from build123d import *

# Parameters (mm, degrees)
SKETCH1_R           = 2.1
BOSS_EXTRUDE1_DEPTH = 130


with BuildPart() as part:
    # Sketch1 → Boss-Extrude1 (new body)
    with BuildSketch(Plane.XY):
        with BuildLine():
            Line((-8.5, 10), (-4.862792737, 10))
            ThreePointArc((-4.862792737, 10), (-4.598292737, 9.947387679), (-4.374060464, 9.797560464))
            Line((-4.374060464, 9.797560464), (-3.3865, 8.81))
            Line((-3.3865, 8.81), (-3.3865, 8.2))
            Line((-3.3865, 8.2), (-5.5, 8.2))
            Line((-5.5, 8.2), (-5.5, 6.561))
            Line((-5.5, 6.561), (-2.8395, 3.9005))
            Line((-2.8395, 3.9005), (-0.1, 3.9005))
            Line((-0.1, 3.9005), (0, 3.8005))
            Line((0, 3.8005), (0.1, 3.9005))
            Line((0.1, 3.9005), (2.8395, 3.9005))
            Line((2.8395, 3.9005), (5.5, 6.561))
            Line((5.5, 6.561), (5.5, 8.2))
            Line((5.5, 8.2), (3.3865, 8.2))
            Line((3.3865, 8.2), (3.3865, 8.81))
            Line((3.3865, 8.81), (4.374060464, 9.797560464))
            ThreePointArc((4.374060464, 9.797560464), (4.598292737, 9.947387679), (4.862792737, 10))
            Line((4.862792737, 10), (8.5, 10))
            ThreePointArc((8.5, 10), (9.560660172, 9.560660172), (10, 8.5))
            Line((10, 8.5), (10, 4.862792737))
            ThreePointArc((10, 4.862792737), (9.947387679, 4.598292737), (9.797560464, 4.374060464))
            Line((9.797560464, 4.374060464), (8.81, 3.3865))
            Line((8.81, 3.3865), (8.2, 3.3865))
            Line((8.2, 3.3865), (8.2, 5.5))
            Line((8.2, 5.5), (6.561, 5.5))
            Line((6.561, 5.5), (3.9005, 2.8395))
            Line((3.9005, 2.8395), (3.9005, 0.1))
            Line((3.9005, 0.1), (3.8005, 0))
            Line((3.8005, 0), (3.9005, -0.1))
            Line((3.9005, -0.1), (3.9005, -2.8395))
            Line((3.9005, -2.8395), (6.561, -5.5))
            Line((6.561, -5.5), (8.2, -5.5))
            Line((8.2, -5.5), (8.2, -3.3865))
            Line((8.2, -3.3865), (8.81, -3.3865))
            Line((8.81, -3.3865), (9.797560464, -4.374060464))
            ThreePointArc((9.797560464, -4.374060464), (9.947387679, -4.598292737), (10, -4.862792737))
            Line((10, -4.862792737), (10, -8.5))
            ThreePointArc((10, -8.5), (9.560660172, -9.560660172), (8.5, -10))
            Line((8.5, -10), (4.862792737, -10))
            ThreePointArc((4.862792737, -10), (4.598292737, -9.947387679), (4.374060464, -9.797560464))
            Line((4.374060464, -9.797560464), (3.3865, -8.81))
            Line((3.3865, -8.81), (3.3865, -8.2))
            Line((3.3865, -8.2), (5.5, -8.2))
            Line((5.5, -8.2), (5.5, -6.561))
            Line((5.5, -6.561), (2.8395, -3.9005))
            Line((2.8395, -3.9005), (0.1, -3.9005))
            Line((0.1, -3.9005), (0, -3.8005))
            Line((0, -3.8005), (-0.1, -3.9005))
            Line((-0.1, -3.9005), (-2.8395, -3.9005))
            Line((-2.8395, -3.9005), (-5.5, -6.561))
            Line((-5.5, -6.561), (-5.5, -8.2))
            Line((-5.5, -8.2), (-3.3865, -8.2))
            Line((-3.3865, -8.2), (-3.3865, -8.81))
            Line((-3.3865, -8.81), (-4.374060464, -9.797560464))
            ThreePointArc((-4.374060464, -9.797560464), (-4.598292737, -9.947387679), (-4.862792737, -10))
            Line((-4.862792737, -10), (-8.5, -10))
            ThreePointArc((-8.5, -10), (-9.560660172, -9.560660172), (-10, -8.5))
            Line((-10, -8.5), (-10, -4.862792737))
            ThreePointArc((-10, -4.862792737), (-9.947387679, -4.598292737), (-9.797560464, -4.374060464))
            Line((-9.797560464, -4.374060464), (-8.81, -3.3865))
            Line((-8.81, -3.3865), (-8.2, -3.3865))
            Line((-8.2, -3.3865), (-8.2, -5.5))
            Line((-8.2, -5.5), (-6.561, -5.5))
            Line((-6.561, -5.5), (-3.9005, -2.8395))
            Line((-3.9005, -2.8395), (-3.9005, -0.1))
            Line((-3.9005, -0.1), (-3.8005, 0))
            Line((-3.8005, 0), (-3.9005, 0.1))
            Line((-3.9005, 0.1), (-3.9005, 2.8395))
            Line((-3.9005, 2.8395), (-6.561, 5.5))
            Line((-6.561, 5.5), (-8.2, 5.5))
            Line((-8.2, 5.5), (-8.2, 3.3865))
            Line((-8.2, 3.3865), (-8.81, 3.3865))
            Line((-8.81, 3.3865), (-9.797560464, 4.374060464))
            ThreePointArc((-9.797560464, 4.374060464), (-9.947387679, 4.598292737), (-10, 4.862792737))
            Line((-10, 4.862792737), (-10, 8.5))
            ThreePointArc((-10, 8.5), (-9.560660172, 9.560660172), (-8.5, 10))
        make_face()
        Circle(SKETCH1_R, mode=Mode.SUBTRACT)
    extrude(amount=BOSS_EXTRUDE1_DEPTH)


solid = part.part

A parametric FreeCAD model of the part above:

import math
import FreeCAD as App
import Part
import Sketcher
from FreeCAD import Vector
Q = App.Units.Quantity

doc = App.newDocument("Part")
body = doc.addObject("PartDesign::Body", "Body")

sketch1 = body.newObject("Sketcher::SketchObject", "Sketch")
sketch1.AttachmentSupport = (doc.getObject("XY_Plane"), [""])
sketch1.MapMode = "FlatFace"
sketch1.addGeometry([
    Part.LineSegment(Vector(-4.86, 10, 0), Vector(-8.5, 10, 0)),
    Part.ArcOfCircle(Part.Circle(Vector(-8.5, 8.5, 0), Vector(0, 0, 1), 1.5), math.radians(90), math.radians(180)),
    Part.LineSegment(Vector(-10, 8.5, 0), Vector(-10, 4.86, 0)),
    Part.ArcOfCircle(Part.Circle(Vector(-9.31, 4.86, 0), Vector(0, 0, 1), 0.69), math.radians(180), math.radians(225)),
    Part.LineSegment(Vector(-9.8, 4.37, 0), Vector(-8.81, 3.39, 0)),
    Part.LineSegment(Vector(-8.81, 3.39, 0), Vector(-8.2, 3.39, 0)),
    Part.LineSegment(Vector(-8.2, 3.39, 0), Vector(-8.2, 5.5, 0)),
    Part.LineSegment(Vector(-8.2, 5.5, 0), Vector(-6.56, 5.5, 0)),
    Part.LineSegment(Vector(-6.56, 5.5, 0), Vector(-3.9, 2.84, 0)),
    Part.LineSegment(Vector(-3.9, 2.84, 0), Vector(-3.9, 0.1, 0)),
    Part.LineSegment(Vector(-3.9, 0.1, 0), Vector(-3.8, 0, 0)),
    Part.LineSegment(Vector(-3.8, 0, 0), Vector(-3.9, -0.1, 0)),
    Part.LineSegment(Vector(-3.9, -0.1, 0), Vector(-3.9, -2.84, 0)),
    Part.LineSegment(Vector(-3.9, -2.84, 0), Vector(-6.56, -5.5, 0)),
    Part.LineSegment(Vector(-6.56, -5.5, 0), Vector(-8.2, -5.5, 0)),
    Part.LineSegment(Vector(-8.2, -5.5, 0), Vector(-8.2, -3.39, 0)),
    Part.LineSegment(Vector(-8.2, -3.39, 0), Vector(-8.81, -3.39, 0)),
    Part.LineSegment(Vector(-8.81, -3.39, 0), Vector(-9.8, -4.37, 0)),
    Part.ArcOfCircle(Part.Circle(Vector(-9.31, -4.86, 0), Vector(0, 0, 1), 0.69), math.radians(135), math.radians(180)),
    Part.LineSegment(Vector(-10, -4.86, 0), Vector(-10, -8.5, 0)),
    Part.ArcOfCircle(Part.Circle(Vector(-8.5, -8.5, 0), Vector(0, 0, 1), 1.5), math.radians(180), math.radians(270)),
    Part.LineSegment(Vector(-8.5, -10, 0), Vector(-4.86, -10, 0)),
    Part.ArcOfCircle(Part.Circle(Vector(-4.86, -9.31, 0), Vector(0, 0, 1), 0.69), math.radians(-90), math.radians(-45)),
    Part.LineSegment(Vector(-4.37, -9.8, 0), Vector(-3.39, -8.81, 0)),
    Part.LineSegment(Vector(-3.39, -8.81, 0), Vector(-3.39, -8.2, 0)),
    Part.LineSegment(Vector(-3.39, -8.2, 0), Vector(-5.5, -8.2, 0)),
    Part.LineSegment(Vector(-5.5, -8.2, 0), Vector(-5.5, -6.56, 0)),
    Part.LineSegment(Vector(-5.5, -6.56, 0), Vector(-2.84, -3.9, 0)),
    Part.LineSegment(Vector(-2.84, -3.9, 0), Vector(-0.1, -3.9, 0)),
    Part.LineSegment(Vector(-0.1, -3.9, 0), Vector(0, -3.8, 0)),
    Part.LineSegment(Vector(0, -3.8, 0), Vector(0.1, -3.9, 0)),
    Part.LineSegment(Vector(0.1, -3.9, 0), Vector(2.84, -3.9, 0)),
    Part.LineSegment(Vector(2.84, -3.9, 0), Vector(5.5, -6.56, 0)),
    Part.LineSegment(Vector(5.5, -6.56, 0), Vector(5.5, -8.2, 0)),
    Part.LineSegment(Vector(5.5, -8.2, 0), Vector(3.39, -8.2, 0)),
    Part.LineSegment(Vector(3.39, -8.2, 0), Vector(3.39, -8.81, 0)),
    Part.LineSegment(Vector(3.39, -8.81, 0), Vector(4.37, -9.8, 0)),
    Part.ArcOfCircle(Part.Circle(Vector(4.86, -9.31, 0), Vector(0, 0, 1), 0.69), math.radians(-135), math.radians(-90)),
    Part.LineSegment(Vector(4.86, -10, 0), Vector(8.5, -10, 0)),
    Part.ArcOfCircle(Part.Circle(Vector(8.5, -8.5, 0), Vector(0, 0, 1), 1.5), math.radians(-90), math.radians(0)),
    Part.LineSegment(Vector(10, -8.5, 0), Vector(10, -4.86, 0)),
    Part.ArcOfCircle(Part.Circle(Vector(9.31, -4.86, 0), Vector(0, 0, 1), 0.69), math.radians(0), math.radians(45)),
    Part.LineSegment(Vector(9.8, -4.37, 0), Vector(8.81, -3.39, 0)),
    Part.LineSegment(Vector(8.81, -3.39, 0), Vector(8.2, -3.39, 0)),
    Part.LineSegment(Vector(8.2, -3.39, 0), Vector(8.2, -5.5, 0)),
    Part.LineSegment(Vector(8.2, -5.5, 0), Vector(6.56, -5.5, 0)),
    Part.LineSegment(Vector(6.56, -5.5, 0), Vector(3.9, -2.84, 0)),
    Part.LineSegment(Vector(3.9, -2.84, 0), Vector(3.9, -0.1, 0)),
    Part.LineSegment(Vector(3.9, -0.1, 0), Vector(3.8, 0, 0)),
    Part.LineSegment(Vector(3.8, 0, 0), Vector(3.9, 0.1, 0)),
    Part.LineSegment(Vector(3.9, 0.1, 0), Vector(3.9, 2.84, 0)),
    Part.LineSegment(Vector(3.9, 2.84, 0), Vector(6.56, 5.5, 0)),
    Part.LineSegment(Vector(6.56, 5.5, 0), Vector(8.2, 5.5, 0)),
    Part.LineSegment(Vector(8.2, 5.5, 0), Vector(8.2, 3.39, 0)),
    Part.LineSegment(Vector(8.2, 3.39, 0), Vector(8.81, 3.39, 0)),
    Part.LineSegment(Vector(8.81, 3.39, 0), Vector(9.8, 4.37, 0)),
    Part.ArcOfCircle(Part.Circle(Vector(9.31, 4.86, 0), Vector(0, 0, 1), 0.69), math.radians(-45), math.radians(0)),
    Part.LineSegment(Vector(10, 4.86, 0), Vector(10, 8.5, 0)),
    Part.ArcOfCircle(Part.Circle(Vector(8.5, 8.5, 0), Vector(0, 0, 1), 1.5), math.radians(0), math.radians(90)),
    Part.LineSegment(Vector(8.5, 10, 0), Vector(4.86, 10, 0)),
    Part.ArcOfCircle(Part.Circle(Vector(4.86, 9.31, 0), Vector(0, 0, 1), 0.69), math.radians(90), math.radians(135)),
    Part.LineSegment(Vector(4.37, 9.8, 0), Vector(3.39, 8.81, 0)),
    Part.LineSegment(Vector(3.39, 8.81, 0), Vector(3.39, 8.2, 0)),
    Part.LineSegment(Vector(3.39, 8.2, 0), Vector(5.5, 8.2, 0)),
    Part.LineSegment(Vector(5.5, 8.2, 0), Vector(5.5, 6.56, 0)),
    Part.LineSegment(Vector(5.5, 6.56, 0), Vector(2.84, 3.9, 0)),
    Part.LineSegment(Vector(2.84, 3.9, 0), Vector(0.1, 3.9, 0)),
    Part.LineSegment(Vector(0.1, 3.9, 0), Vector(0, 3.8, 0)),
    Part.LineSegment(Vector(0, 3.8, 0), Vector(-0.1, 3.9, 0)),
    Part.LineSegment(Vector(-0.1, 3.9, 0), Vector(-2.84, 3.9, 0)),
    Part.LineSegment(Vector(-2.84, 3.9, 0), Vector(-5.5, 6.56, 0)),
    Part.LineSegment(Vector(-5.5, 6.56, 0), Vector(-5.5, 8.2, 0)),
    Part.LineSegment(Vector(-5.5, 8.2, 0), Vector(-3.39, 8.2, 0)),
    Part.LineSegment(Vector(-3.39, 8.2, 0), Vector(-3.39, 8.81, 0)),
    Part.LineSegment(Vector(-3.39, 8.81, 0), Vector(-4.37, 9.8, 0)),
    Part.ArcOfCircle(Part.Circle(Vector(-4.86, 9.31, 0), Vector(0, 0, 1), 0.69), math.radians(45), math.radians(90)),
    Part.Circle(Vector(0, 0, 0), Vector(0, 0, 1), 2.1),
], False)
sketch1.addConstraint([
    Sketcher.Constraint("Tangent", 0, 2, 1, 1),
    Sketcher.Constraint("Tangent", 1, 2, 2, 1),
    Sketcher.Constraint("Tangent", 2, 2, 3, 1),
    Sketcher.Constraint("Tangent", 3, 2, 4, 1),
    Sketcher.Constraint("Coincident", 4, 2, 5, 1),
    Sketcher.Constraint("Coincident", 5, 2, 6, 1),
    Sketcher.Constraint("Coincident", 6, 2, 7, 1),
    Sketcher.Constraint("Coincident", 7, 2, 8, 1),
    Sketcher.Constraint("Coincident", 8, 2, 9, 1),
    Sketcher.Constraint("Coincident", 9, 2, 10, 1),
    Sketcher.Constraint("Coincident", 10, 2, 11, 1),
    Sketcher.Constraint("Coincident", 11, 2, 12, 1),
    Sketcher.Constraint("Coincident", 12, 2, 13, 1),
    Sketcher.Constraint("Coincident", 13, 2, 14, 1),
    Sketcher.Constraint("Coincident", 14, 2, 15, 1),
    Sketcher.Constraint("Coincident", 15, 2, 16, 1),
    Sketcher.Constraint("Coincident", 16, 2, 17, 1),
    Sketcher.Constraint("Tangent", 17, 2, 18, 1),
    Sketcher.Constraint("Tangent", 18, 2, 19, 1),
    Sketcher.Constraint("Tangent", 19, 2, 20, 1),
    Sketcher.Constraint("Tangent", 20, 2, 21, 1),
    Sketcher.Constraint("Tangent", 21, 2, 22, 1),
    Sketcher.Constraint("Tangent", 22, 2, 23, 1),
    Sketcher.Constraint("Coincident", 23, 2, 24, 1),
    Sketcher.Constraint("Coincident", 24, 2, 25, 1),
    Sketcher.Constraint("Coincident", 25, 2, 26, 1),
    Sketcher.Constraint("Coincident", 26, 2, 27, 1),
    Sketcher.Constraint("Coincident", 27, 2, 28, 1),
    Sketcher.Constraint("Coincident", 28, 2, 29, 1),
    Sketcher.Constraint("Coincident", 29, 2, 30, 1),
    Sketcher.Constraint("Coincident", 30, 2, 31, 1),
    Sketcher.Constraint("Coincident", 31, 2, 32, 1),
    Sketcher.Constraint("Coincident", 32, 2, 33, 1),
    Sketcher.Constraint("Coincident", 33, 2, 34, 1),
    Sketcher.Constraint("Coincident", 34, 2, 35, 1),
    Sketcher.Constraint("Coincident", 35, 2, 36, 1),
    Sketcher.Constraint("Tangent", 36, 2, 37, 1),
    Sketcher.Constraint("Tangent", 37, 2, 38, 1),
    Sketcher.Constraint("Tangent", 38, 2, 39, 1),
    Sketcher.Constraint("Tangent", 39, 2, 40, 1),
    Sketcher.Constraint("Tangent", 40, 2, 41, 1),
    Sketcher.Constraint("Tangent", 41, 2, 42, 1),
    Sketcher.Constraint("Coincident", 42, 2, 43, 1),
    Sketcher.Constraint("Coincident", 43, 2, 44, 1),
    Sketcher.Constraint("Coincident", 44, 2, 45, 1),
    Sketcher.Constraint("Coincident", 45, 2, 46, 1),
    Sketcher.Constraint("Coincident", 46, 2, 47, 1),
    Sketcher.Constraint("Coincident", 47, 2, 48, 1),
    Sketcher.Constraint("Coincident", 48, 2, 49, 1),
    Sketcher.Constraint("Coincident", 49, 2, 50, 1),
    Sketcher.Constraint("Coincident", 50, 2, 51, 1),
    Sketcher.Constraint("Coincident", 51, 2, 52, 1),
    Sketcher.Constraint("Coincident", 52, 2, 53, 1),
    Sketcher.Constraint("Coincident", 53, 2, 54, 1),
    Sketcher.Constraint("Coincident", 54, 2, 55, 1),
    Sketcher.Constraint("Tangent", 55, 2, 56, 1),
    Sketcher.Constraint("Tangent", 56, 2, 57, 1),
    Sketcher.Constraint("Tangent", 57, 2, 58, 1),
    Sketcher.Constraint("Tangent", 58, 2, 59, 1),
    Sketcher.Constraint("Tangent", 59, 2, 60, 1),
    Sketcher.Constraint("Tangent", 60, 2, 61, 1),
    Sketcher.Constraint("Coincident", 61, 2, 62, 1),
    Sketcher.Constraint("Coincident", 62, 2, 63, 1),
    Sketcher.Constraint("Coincident", 63, 2, 64, 1),
    Sketcher.Constraint("Coincident", 64, 2, 65, 1),
    Sketcher.Constraint("Coincident", 65, 2, 66, 1),
    Sketcher.Constraint("Coincident", 66, 2, 67, 1),
    Sketcher.Constraint("Coincident", 67, 2, 68, 1),
    Sketcher.Constraint("Coincident", 68, 2, 69, 1),
    Sketcher.Constraint("Coincident", 69, 2, 70, 1),
    Sketcher.Constraint("Coincident", 70, 2, 71, 1),
    Sketcher.Constraint("Coincident", 71, 2, 72, 1),
    Sketcher.Constraint("Coincident", 72, 2, 73, 1),
    Sketcher.Constraint("Coincident", 73, 2, 74, 1),
    Sketcher.Constraint("Tangent", 74, 2, 75, 1),
    Sketcher.Constraint("Tangent", 75, 2, 0, 1),
    Sketcher.Constraint("Horizontal", 0),
    Sketcher.Constraint("Vertical", 2),
    Sketcher.Constraint("Horizontal", 5),
    Sketcher.Constraint("Vertical", 6),
    Sketcher.Constraint("Horizontal", 7),
    Sketcher.Constraint("Vertical", 9),
    Sketcher.Constraint("Vertical", 12),
    Sketcher.Constraint("Horizontal", 14),
    Sketcher.Constraint("Vertical", 15),
    Sketcher.Constraint("Horizontal", 16),
    Sketcher.Constraint("Vertical", 19),
    Sketcher.Constraint("Horizontal", 21),
    Sketcher.Constraint("Vertical", 24),
    Sketcher.Constraint("Horizontal", 25),
    Sketcher.Constraint("Vertical", 26),
    Sketcher.Constraint("Horizontal", 28),
    Sketcher.Constraint("Horizontal", 31),
    Sketcher.Constraint("Vertical", 33),
    Sketcher.Constraint("Horizontal", 34),
    Sketcher.Constraint("Vertical", 35),
    Sketcher.Constraint("Horizontal", 38),
    Sketcher.Constraint("Vertical", 40),
    Sketcher.Constraint("Horizontal", 43),
    Sketcher.Constraint("Vertical", 44),
    Sketcher.Constraint("Horizontal", 45),
    Sketcher.Constraint("Vertical", 47),
    Sketcher.Constraint("Vertical", 50),
    Sketcher.Constraint("Horizontal", 52),
    Sketcher.Constraint("Vertical", 53),
    Sketcher.Constraint("Horizontal", 54),
    Sketcher.Constraint("Vertical", 57),
    Sketcher.Constraint("Horizontal", 59),
    Sketcher.Constraint("Vertical", 62),
    Sketcher.Constraint("Horizontal", 63),
    Sketcher.Constraint("Vertical", 64),
    Sketcher.Constraint("Horizontal", 66),
    Sketcher.Constraint("Horizontal", 69),
    Sketcher.Constraint("Vertical", 71),
    Sketcher.Constraint("Horizontal", 72),
    Sketcher.Constraint("Vertical", 73),
    Sketcher.Constraint("Coincident", 76, 3, -1, 1),
    Sketcher.Constraint("Equal", 3, 18),
    Sketcher.Constraint("Equal", 1, 20),
    Sketcher.Constraint("Equal", 18, 22),
    Sketcher.Constraint("Equal", 22, 37),
    Sketcher.Constraint("Equal", 20, 39),
    Sketcher.Constraint("Equal", 37, 41),
    Sketcher.Constraint("Equal", 41, 56),
    Sketcher.Constraint("Equal", 39, 58),
    Sketcher.Constraint("Equal", 56, 60),
    Sketcher.Constraint("Equal", 60, 75),
    Sketcher.Constraint("Symmetric", 1, 3, 39, 3, -1, 1),
    Sketcher.Constraint("Symmetric", 18, 3, 56, 3, -1, 1),
    Sketcher.Constraint("Symmetric", 22, 3, 60, 3, -1, 1),
    Sketcher.Constraint("Symmetric", 3, 2, 41, 2, -1, 1),
    Sketcher.Constraint("Symmetric", 5, 2, 43, 2, -1, 1),
    Sketcher.Constraint("Symmetric", 7, 2, 45, 2, -1, 1),
    Sketcher.Constraint("Symmetric", 8, 2, 46, 2, -1, 1),
    Sketcher.Constraint("Symmetric", 10, 2, 48, 2, -1, 1),
    Sketcher.Constraint("Symmetric", 11, 2, 49, 2, -1, 1),
    Sketcher.Constraint("Symmetric", 13, 2, 51, 2, -1, 1),
    Sketcher.Constraint("Symmetric", 15, 2, 53, 2, -1, 1),
    Sketcher.Constraint("Symmetric", 23, 2, 61, 2, -1, 1),
    Sketcher.Constraint("Symmetric", 25, 2, 63, 2, -1, 1),
    Sketcher.Constraint("Symmetric", 27, 2, 65, 2, -1, 1),
    Sketcher.Constraint("Symmetric", 29, 2, 67, 2, -1, 1),
    Sketcher.Constraint("Symmetric", 30, 2, 68, 2, -1, 1),
    Sketcher.Constraint("Symmetric", 32, 2, 70, 2, -1, 1),
    Sketcher.Constraint("Symmetric", 34, 2, 72, 2, -1, 1),
    Sketcher.Constraint("Symmetric", 36, 2, 74, 2, -1, 1),
    Sketcher.Constraint("Symmetric", 22, 3, 37, 3, -2),
    Sketcher.Constraint("Symmetric", 18, 3, 41, 3, -2),
    Sketcher.Constraint("Symmetric", 28, 2, 30, 2, -2),
    Sketcher.Constraint("Symmetric", 26, 2, 32, 2, -2),
    Sketcher.Constraint("Symmetric", 24, 2, 34, 2, -2),
    Sketcher.Constraint("Symmetric", 16, 2, 42, 2, -2),
    Sketcher.Constraint("Symmetric", 14, 2, 44, 2, -2),
    Sketcher.Constraint("Symmetric", 12, 2, 46, 2, -2),
    Sketcher.Constraint("PointOnObject", 10, 2, -1),
    Sketcher.Constraint("PointOnObject", 29, 2, -2),
    Sketcher.Constraint("Parallel", 4, 8),
    Sketcher.Constraint("Parallel", 8, 10),
    Sketcher.Constraint("Perpendicular", 10, 11),
    Sketcher.Constraint("Parallel", 11, 13),
    Sketcher.Constraint("Parallel", 13, 17),
    Sketcher.Constraint("Parallel", 17, 23),
    Sketcher.Constraint("Parallel", 23, 27),
    Sketcher.Constraint("Parallel", 27, 29),
    Sketcher.Constraint("Parallel", 30, 32),
    Sketcher.Constraint("Parallel", 32, 36),
    Sketcher.Constraint("Parallel", 46, 48),
    Sketcher.Constraint("Parallel", 49, 51),
    Sketcher.Constraint("Parallel", 51, 55),
    Sketcher.Constraint("Parallel", 61, 65),
    Sketcher.Constraint("Parallel", 65, 67),
    Sketcher.Constraint("Parallel", 68, 70),
    Sketcher.Constraint("Equal", 59, 2),
    Sketcher.Constraint("Equal", 72, 6),
    Sketcher.Constraint("Equal", 69, 9),
    Sketcher.Constraint("Equal", 54, 24),
    Sketcher.Constraint("Equal", 52, 26),
    Sketcher.Constraint("Equal", 17, 23),
    Sketcher.Constraint("Equal", 13, 27),
    Sketcher.Constraint("Equal", 11, 29),
    Sketcher.Constraint("Diameter", 76, Q("4.2 mm")),
    Sketcher.Constraint("Radius", 1, Q("1.5 mm")),
    Sketcher.Constraint("DistanceY", -1, 1, 0, 2, Q("10 mm")),
    Sketcher.Constraint("DistanceX", 5, 1, 5, 2, Q("0.61 mm")),
    Sketcher.Constraint("DistanceX", 5, 2, -1, 1, Q("8.2 mm")),
    Sketcher.Constraint("DistanceY", -1, 1, 6, 2, Q("5.5 mm")),
    Sketcher.Constraint("DistanceY", -1, 1, 9, 2, Q("0.1 mm")),
    Sketcher.Constraint("DistanceX", 7, 1, 7, 2, Q("1.639 mm")),
    Sketcher.Constraint("Radius", 3, Q("0.691172 mm")),
    Sketcher.Constraint("DistanceX", 25, 2, 25, 1, Q("2.1135 mm")),
    Sketcher.Constraint("DistanceX", 28, 1, 28, 2, Q("2.7395 mm")),
])
pad1 = body.newObject("PartDesign::Pad", "Pad")
pad1.Profile = sketch1
pad1.Length = 130

doc.recompute()
